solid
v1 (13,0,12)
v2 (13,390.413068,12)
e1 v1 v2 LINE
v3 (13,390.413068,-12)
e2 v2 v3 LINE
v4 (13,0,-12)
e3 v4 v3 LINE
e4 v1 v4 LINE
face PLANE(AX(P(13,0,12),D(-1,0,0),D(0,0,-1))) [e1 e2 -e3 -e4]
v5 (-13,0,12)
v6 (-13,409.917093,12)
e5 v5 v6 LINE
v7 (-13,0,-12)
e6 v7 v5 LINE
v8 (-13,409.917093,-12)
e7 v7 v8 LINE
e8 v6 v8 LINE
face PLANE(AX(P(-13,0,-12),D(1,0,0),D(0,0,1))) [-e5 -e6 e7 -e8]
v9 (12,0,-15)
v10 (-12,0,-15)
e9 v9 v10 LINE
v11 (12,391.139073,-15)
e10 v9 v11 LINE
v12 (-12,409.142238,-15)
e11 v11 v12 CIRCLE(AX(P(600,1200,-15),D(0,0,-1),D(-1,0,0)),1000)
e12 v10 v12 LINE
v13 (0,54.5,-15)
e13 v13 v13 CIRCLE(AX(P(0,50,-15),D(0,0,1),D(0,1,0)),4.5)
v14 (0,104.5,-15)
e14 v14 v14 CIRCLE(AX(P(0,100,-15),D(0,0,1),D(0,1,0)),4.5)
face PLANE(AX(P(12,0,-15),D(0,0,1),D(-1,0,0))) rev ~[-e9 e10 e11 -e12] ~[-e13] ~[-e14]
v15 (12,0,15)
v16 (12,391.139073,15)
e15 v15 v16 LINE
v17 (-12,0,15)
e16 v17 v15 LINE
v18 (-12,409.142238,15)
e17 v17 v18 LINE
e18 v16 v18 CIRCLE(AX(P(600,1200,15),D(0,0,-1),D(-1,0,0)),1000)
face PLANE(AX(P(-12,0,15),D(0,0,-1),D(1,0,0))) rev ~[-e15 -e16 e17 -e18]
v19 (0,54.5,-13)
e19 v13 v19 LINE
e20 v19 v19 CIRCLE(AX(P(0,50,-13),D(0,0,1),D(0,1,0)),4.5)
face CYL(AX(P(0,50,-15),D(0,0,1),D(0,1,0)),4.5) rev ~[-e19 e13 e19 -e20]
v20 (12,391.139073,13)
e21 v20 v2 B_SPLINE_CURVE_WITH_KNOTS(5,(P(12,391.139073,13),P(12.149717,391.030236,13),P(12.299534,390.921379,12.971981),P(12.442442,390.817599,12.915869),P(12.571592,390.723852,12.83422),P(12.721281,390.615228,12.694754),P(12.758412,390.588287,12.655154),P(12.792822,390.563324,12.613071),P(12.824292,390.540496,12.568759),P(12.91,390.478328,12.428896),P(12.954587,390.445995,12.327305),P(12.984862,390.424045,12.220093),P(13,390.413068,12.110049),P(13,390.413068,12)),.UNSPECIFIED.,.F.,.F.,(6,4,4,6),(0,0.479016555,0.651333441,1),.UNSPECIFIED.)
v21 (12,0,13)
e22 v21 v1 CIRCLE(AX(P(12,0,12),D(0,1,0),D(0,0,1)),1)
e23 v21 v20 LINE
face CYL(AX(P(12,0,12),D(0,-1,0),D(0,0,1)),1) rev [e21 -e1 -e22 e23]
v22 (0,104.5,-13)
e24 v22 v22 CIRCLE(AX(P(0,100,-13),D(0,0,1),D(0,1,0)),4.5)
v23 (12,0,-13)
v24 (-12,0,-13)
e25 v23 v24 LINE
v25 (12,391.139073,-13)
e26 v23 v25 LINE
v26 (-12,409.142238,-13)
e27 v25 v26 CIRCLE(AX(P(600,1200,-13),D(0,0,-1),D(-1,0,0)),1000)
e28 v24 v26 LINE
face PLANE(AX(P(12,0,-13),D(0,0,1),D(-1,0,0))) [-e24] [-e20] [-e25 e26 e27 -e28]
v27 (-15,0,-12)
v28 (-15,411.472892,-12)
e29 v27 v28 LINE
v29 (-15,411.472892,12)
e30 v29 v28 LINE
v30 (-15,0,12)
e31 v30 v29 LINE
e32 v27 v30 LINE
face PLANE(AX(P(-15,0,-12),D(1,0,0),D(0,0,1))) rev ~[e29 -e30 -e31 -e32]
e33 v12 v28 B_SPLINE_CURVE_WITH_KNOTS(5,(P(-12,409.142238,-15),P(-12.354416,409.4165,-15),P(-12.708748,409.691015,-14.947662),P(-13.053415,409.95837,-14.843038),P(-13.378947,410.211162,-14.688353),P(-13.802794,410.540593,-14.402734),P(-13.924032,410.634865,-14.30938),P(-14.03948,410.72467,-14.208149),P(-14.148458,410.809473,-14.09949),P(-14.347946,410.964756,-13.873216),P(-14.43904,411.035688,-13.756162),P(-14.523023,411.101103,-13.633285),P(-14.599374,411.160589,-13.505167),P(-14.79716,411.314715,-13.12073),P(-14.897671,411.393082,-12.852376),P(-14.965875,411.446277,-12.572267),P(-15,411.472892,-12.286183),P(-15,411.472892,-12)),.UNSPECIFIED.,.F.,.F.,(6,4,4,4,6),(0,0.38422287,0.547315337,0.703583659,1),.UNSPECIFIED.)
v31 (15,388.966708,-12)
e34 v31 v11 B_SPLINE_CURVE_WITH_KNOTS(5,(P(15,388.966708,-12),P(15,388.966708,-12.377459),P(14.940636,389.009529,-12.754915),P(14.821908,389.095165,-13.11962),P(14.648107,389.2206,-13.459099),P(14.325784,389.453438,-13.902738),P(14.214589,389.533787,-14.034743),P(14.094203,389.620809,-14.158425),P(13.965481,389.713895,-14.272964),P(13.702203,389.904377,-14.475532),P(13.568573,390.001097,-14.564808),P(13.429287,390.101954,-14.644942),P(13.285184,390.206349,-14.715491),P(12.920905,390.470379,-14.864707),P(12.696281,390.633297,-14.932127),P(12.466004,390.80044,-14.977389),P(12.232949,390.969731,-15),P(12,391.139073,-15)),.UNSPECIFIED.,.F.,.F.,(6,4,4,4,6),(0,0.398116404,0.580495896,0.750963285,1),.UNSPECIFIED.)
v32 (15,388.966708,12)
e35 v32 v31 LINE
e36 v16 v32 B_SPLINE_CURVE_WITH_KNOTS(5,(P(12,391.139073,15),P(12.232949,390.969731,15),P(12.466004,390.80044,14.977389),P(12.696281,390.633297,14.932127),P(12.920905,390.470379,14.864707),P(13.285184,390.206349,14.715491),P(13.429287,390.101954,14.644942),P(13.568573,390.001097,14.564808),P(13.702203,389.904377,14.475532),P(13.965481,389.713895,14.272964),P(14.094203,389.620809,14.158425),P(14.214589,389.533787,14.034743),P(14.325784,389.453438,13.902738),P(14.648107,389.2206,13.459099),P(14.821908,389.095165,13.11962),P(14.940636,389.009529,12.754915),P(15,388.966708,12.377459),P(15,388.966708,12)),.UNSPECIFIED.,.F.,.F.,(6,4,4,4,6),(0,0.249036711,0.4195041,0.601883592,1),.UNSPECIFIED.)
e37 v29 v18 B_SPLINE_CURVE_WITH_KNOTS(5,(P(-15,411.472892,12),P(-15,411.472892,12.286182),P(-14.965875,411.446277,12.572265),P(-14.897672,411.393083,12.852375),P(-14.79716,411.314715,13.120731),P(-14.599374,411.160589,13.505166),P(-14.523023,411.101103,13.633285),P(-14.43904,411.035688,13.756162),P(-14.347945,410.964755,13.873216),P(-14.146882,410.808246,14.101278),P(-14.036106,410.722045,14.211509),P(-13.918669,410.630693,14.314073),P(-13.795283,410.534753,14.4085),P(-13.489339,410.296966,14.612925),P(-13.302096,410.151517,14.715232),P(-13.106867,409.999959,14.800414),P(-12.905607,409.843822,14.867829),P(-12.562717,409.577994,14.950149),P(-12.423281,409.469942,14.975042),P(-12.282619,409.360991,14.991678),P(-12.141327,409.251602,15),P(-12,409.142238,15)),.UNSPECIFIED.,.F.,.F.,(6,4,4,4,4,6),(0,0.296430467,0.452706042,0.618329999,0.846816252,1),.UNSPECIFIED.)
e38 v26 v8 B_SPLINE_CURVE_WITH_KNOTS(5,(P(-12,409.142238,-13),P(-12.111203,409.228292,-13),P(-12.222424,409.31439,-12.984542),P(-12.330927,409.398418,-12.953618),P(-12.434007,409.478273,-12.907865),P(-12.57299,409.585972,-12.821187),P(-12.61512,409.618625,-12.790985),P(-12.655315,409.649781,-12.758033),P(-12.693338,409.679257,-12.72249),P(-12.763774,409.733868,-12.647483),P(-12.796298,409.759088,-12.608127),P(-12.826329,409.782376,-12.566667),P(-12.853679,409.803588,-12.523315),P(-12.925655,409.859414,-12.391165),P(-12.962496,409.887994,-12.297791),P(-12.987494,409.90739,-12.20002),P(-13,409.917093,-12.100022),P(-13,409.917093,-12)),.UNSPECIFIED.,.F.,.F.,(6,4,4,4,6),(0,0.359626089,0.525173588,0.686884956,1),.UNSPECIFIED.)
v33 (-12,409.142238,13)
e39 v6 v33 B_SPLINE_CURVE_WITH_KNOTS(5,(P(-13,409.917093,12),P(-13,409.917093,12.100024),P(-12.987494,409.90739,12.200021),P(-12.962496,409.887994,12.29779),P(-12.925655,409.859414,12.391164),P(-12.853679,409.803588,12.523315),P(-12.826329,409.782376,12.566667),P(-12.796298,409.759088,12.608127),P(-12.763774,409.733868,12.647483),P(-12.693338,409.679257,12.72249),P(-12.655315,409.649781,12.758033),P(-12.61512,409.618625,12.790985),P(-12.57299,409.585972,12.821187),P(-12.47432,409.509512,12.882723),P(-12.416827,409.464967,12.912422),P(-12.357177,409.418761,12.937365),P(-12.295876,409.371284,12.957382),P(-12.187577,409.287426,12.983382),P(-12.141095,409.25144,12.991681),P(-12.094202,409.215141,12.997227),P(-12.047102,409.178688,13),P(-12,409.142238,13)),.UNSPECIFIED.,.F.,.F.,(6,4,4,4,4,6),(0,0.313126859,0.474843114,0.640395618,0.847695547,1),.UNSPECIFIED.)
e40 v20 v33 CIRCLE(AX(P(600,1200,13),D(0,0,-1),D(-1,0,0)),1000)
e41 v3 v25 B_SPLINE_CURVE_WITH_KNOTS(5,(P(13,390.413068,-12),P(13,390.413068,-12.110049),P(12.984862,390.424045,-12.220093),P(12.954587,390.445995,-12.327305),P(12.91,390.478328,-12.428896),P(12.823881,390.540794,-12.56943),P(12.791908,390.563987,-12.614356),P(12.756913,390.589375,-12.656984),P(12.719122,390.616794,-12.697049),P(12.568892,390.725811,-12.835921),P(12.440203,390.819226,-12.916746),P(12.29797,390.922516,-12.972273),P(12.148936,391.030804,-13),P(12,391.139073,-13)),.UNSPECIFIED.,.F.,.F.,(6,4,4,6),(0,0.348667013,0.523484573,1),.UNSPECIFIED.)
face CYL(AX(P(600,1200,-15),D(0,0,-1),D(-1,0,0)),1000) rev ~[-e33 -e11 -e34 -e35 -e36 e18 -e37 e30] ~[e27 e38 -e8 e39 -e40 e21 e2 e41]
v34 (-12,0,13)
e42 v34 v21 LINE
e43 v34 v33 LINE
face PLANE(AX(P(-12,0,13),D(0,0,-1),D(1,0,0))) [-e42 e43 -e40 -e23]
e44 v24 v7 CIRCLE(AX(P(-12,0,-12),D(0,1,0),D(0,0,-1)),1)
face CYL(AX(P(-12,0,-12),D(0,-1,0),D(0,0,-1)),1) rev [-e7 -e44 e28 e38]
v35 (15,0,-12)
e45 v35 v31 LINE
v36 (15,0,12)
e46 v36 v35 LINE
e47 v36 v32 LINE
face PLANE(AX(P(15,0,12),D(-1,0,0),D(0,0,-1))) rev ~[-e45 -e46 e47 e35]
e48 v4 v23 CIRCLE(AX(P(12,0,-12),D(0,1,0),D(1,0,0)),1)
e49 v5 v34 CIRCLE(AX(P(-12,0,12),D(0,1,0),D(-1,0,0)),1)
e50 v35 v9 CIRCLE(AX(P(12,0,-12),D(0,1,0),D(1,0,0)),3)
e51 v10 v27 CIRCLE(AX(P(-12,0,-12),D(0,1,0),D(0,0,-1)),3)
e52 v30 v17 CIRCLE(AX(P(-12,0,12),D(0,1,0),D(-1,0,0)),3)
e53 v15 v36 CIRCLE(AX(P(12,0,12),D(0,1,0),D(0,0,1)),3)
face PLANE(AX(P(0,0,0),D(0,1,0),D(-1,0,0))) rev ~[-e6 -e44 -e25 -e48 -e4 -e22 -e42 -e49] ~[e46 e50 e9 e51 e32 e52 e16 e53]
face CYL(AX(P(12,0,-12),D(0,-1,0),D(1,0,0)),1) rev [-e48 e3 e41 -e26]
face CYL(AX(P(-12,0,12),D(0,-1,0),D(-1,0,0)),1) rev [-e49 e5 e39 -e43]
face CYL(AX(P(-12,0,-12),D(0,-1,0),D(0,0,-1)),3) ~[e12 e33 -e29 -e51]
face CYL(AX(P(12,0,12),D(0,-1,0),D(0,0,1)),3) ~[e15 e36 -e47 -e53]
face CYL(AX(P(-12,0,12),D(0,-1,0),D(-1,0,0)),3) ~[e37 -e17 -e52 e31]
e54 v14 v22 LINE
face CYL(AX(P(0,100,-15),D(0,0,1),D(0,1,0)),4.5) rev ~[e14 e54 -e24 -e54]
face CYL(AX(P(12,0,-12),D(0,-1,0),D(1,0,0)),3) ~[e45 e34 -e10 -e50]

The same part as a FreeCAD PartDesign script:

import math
import FreeCAD as App
import Part
import Sketcher
from FreeCAD import Vector

doc = App.newDocument("Part")
body = doc.addObject("PartDesign::Body", "Body")

# Sketch on XZ plane
sketch1 = doc.addObject("Sketcher::SketchObject", "Sketch")
body.addObject(sketch1)
sketch1.AttachmentSupport = (doc.XZ_Plane, [""])
sketch1.MapMode = "FlatFace"
sketch1.addGeometry([
    Part.ArcOfCircle(Part.Circle(Vector(12, -12, 0), Vector(0, 0, 1), 3), math.radians(-90), math.radians(0)),  # 0
    Part.LineSegment(Vector(12, -15, 0), Vector(-12, -15, 0)),  # 1
    Part.ArcOfCircle(Part.Circle(Vector(-12, -12, 0), Vector(0, 0, 1), 3), math.radians(180), math.radians(270)),  # 2
    Part.LineSegment(Vector(-15, -12, 0), Vector(-15, 12, 0)),  # 3
    Part.ArcOfCircle(Part.Circle(Vector(-12, 12, 0), Vector(0, 0, 1), 3), math.radians(90), math.radians(180)),  # 4
    Part.LineSegment(Vector(-12, 15, 0), Vector(12, 15, 0)),  # 5
    Part.ArcOfCircle(Part.Circle(Vector(12, 12, 0), Vector(0, 0, 1), 3), math.radians(0), math.radians(90)),  # 6
    Part.LineSegment(Vector(15, 12, 0), Vector(15, -12, 0)),  # 7
    Part.LineSegment(Vector(-13, 12, 0), Vector(-13, -12, 0)),  # 8
    Part.ArcOfCircle(Part.Circle(Vector(-12, -12, 0), Vector(0, 0, 1), 1), math.radians(180), math.radians(270)),  # 9
    Part.LineSegment(Vector(-12, -13, 0), Vector(12, -13, 0)),  # 10
    Part.ArcOfCircle(Part.Circle(Vector(12, -12, 0), Vector(0, 0, 1), 1), math.radians(-90), math.radians(0)),  # 11
    Part.LineSegment(Vector(13, -12, 0), Vector(13, 12, 0)),  # 12
    Part.ArcOfCircle(Part.Circle(Vector(12, 12, 0), Vector(0, 0, 1), 1), math.radians(0), math.radians(90)),  # 13
    Part.LineSegment(Vector(12, 13, 0), Vector(-12, 13, 0)),  # 14
    Part.ArcOfCircle(Part.Circle(Vector(-12, 12, 0), Vector(0, 0, 1), 1), math.radians(90), math.radians(180)),  # 15
], False)
sketch1.addConstraint([
    Sketcher.Constraint("Tangent", 0, 1, 1, 1),
    Sketcher.Constraint("Tangent", 1, 2, 2, 2),
    Sketcher.Constraint("Tangent", 2, 1, 3, 1),
    Sketcher.Constraint("Tangent", 3, 2, 4, 2),
    Sketcher.Constraint("Tangent", 4, 1, 5, 1),
    Sketcher.Constraint("Tangent", 5, 2, 6, 2),
    Sketcher.Constraint("Tangent", 6, 1, 7, 1),
    Sketcher.Constraint("Tangent", 7, 2, 0, 2),
    Sketcher.Constraint("Tangent", 8, 2, 9, 1),
    Sketcher.Constraint("Tangent", 9, 2, 10, 1),
    Sketcher.Constraint("Tangent", 10, 2, 11, 1),
    Sketcher.Constraint("Tangent", 11, 2, 12, 1),
    Sketcher.Constraint("Tangent", 12, 2, 13, 1),
    Sketcher.Constraint("Tangent", 13, 2, 14, 1),
    Sketcher.Constraint("Tangent", 14, 2, 15, 1),
    Sketcher.Constraint("Tangent", 15, 2, 8, 1),
    Sketcher.Constraint("Horizontal", 1),
    Sketcher.Constraint("Vertical", 3),
    Sketcher.Constraint("Horizontal", 5),
    Sketcher.Constraint("Vertical", 7),
    Sketcher.Constraint("Vertical", 8),
    Sketcher.Constraint("Horizontal", 10),
    Sketcher.Constraint("Vertical", 12),
    Sketcher.Constraint("Horizontal", 14),
    Sketcher.Constraint("Coincident", 9, 3, 2, 3),
    Sketcher.Constraint("Coincident", 11, 3, 0, 3),
    Sketcher.Constraint("Coincident", 13, 3, 6, 3),
    Sketcher.Constraint("Equal", 0, 2),
    Sketcher.Constraint("Equal", 2, 4),
    Sketcher.Constraint("Equal", 4, 6),
    Sketcher.Constraint("Equal", 13, 15),
    Sketcher.Constraint("Symmetric", 0, 3, 4, 3, -1, 1),
    Sketcher.Constraint("Equal", 14, 3),
    Sketcher.Constraint("Radius", 9, 1.0),
    Sketcher.Constraint("Radius", 0, 3.0),
    Sketcher.Constraint("DistanceX", 1, 2, 1, 1, 24.0),
])
pad1 = doc.addObject("PartDesign::Pad", "Pad")
body.addObject(pad1)
pad1.Profile = sketch1
pad1.Length = 500
pad1.Reversed = True

# Sketch on XY plane
sketch2 = doc.addObject("Sketcher::SketchObject", "Sketch001")
body.addObject(sketch2)
sketch2.AttachmentSupport = (doc.XY_Plane, [""])
sketch2.MapMode = "FlatFace"
sketch2.AttachmentOffset = App.Placement(Vector(0, 0, -15), App.Rotation())
sketch2.addGeometry([
    Part.Circle(Vector(0, 50, 0), Vector(0, 0, 1), 4.5),
    Part.Circle(Vector(0, 100, 0), Vector(0, 0, 1), 4.5),
], False)
sketch2.addConstraint([
    Sketcher.Constraint("Equal", 0, 1),
    Sketcher.Constraint("PointOnObject", 0, 3, -2),
    Sketcher.Constraint("PointOnObject", 1, 3, -2),
    Sketcher.Constraint("Diameter", 0, 9.0),
    Sketcher.Constraint("DistanceY", -1, 1, 0, 3, 50.0),
    Sketcher.Constraint("DistanceY", -1, 1, 1, 3, 100.0),
])
doc.recompute()
hole = doc.addObject("PartDesign::Hole", "Hole")
body.addObject(hole)
hole.Profile = sketch2
hole.ThreadType = "None"
hole.Diameter = 9
hole.DepthType = "Dimension"
hole.Depth = 20.2
hole.DrillPoint = "Angled"
hole.DrillPointAngle = 118
hole.Reversed = True

# Sketch on XY plane
sketch3 = doc.addObject("Sketcher::SketchObject", "Sketch002")
body.addObject(sketch3)
sketch3.AttachmentSupport = (doc.XY_Plane, [""])
sketch3.MapMode = "FlatFace"
sketch3.AttachmentOffset = App.Placement(Vector(0, 0, -15), App.Rotation())
sketch3.addGeometry(Part.Circle(Vector(600, 1200, 0), Vector(0, 0, 1), 1000), False)
sketch3.addConstraint([
    Sketcher.Constraint("Diameter", 0, 2000.0),
    Sketcher.Constraint("DistanceX", -1, 1, 0, 3, 600.0),
    Sketcher.Constraint("DistanceY", -1, 1, 0, 3, 1200.0),
])
pocket1 = doc.addObject("PartDesign::Pocket", "Pocket")
body.addObject(pocket1)
pocket1.Profile = sketch3
pocket1.Type = "ThroughAll"
pocket1.Reversed = True

doc.recompute()
